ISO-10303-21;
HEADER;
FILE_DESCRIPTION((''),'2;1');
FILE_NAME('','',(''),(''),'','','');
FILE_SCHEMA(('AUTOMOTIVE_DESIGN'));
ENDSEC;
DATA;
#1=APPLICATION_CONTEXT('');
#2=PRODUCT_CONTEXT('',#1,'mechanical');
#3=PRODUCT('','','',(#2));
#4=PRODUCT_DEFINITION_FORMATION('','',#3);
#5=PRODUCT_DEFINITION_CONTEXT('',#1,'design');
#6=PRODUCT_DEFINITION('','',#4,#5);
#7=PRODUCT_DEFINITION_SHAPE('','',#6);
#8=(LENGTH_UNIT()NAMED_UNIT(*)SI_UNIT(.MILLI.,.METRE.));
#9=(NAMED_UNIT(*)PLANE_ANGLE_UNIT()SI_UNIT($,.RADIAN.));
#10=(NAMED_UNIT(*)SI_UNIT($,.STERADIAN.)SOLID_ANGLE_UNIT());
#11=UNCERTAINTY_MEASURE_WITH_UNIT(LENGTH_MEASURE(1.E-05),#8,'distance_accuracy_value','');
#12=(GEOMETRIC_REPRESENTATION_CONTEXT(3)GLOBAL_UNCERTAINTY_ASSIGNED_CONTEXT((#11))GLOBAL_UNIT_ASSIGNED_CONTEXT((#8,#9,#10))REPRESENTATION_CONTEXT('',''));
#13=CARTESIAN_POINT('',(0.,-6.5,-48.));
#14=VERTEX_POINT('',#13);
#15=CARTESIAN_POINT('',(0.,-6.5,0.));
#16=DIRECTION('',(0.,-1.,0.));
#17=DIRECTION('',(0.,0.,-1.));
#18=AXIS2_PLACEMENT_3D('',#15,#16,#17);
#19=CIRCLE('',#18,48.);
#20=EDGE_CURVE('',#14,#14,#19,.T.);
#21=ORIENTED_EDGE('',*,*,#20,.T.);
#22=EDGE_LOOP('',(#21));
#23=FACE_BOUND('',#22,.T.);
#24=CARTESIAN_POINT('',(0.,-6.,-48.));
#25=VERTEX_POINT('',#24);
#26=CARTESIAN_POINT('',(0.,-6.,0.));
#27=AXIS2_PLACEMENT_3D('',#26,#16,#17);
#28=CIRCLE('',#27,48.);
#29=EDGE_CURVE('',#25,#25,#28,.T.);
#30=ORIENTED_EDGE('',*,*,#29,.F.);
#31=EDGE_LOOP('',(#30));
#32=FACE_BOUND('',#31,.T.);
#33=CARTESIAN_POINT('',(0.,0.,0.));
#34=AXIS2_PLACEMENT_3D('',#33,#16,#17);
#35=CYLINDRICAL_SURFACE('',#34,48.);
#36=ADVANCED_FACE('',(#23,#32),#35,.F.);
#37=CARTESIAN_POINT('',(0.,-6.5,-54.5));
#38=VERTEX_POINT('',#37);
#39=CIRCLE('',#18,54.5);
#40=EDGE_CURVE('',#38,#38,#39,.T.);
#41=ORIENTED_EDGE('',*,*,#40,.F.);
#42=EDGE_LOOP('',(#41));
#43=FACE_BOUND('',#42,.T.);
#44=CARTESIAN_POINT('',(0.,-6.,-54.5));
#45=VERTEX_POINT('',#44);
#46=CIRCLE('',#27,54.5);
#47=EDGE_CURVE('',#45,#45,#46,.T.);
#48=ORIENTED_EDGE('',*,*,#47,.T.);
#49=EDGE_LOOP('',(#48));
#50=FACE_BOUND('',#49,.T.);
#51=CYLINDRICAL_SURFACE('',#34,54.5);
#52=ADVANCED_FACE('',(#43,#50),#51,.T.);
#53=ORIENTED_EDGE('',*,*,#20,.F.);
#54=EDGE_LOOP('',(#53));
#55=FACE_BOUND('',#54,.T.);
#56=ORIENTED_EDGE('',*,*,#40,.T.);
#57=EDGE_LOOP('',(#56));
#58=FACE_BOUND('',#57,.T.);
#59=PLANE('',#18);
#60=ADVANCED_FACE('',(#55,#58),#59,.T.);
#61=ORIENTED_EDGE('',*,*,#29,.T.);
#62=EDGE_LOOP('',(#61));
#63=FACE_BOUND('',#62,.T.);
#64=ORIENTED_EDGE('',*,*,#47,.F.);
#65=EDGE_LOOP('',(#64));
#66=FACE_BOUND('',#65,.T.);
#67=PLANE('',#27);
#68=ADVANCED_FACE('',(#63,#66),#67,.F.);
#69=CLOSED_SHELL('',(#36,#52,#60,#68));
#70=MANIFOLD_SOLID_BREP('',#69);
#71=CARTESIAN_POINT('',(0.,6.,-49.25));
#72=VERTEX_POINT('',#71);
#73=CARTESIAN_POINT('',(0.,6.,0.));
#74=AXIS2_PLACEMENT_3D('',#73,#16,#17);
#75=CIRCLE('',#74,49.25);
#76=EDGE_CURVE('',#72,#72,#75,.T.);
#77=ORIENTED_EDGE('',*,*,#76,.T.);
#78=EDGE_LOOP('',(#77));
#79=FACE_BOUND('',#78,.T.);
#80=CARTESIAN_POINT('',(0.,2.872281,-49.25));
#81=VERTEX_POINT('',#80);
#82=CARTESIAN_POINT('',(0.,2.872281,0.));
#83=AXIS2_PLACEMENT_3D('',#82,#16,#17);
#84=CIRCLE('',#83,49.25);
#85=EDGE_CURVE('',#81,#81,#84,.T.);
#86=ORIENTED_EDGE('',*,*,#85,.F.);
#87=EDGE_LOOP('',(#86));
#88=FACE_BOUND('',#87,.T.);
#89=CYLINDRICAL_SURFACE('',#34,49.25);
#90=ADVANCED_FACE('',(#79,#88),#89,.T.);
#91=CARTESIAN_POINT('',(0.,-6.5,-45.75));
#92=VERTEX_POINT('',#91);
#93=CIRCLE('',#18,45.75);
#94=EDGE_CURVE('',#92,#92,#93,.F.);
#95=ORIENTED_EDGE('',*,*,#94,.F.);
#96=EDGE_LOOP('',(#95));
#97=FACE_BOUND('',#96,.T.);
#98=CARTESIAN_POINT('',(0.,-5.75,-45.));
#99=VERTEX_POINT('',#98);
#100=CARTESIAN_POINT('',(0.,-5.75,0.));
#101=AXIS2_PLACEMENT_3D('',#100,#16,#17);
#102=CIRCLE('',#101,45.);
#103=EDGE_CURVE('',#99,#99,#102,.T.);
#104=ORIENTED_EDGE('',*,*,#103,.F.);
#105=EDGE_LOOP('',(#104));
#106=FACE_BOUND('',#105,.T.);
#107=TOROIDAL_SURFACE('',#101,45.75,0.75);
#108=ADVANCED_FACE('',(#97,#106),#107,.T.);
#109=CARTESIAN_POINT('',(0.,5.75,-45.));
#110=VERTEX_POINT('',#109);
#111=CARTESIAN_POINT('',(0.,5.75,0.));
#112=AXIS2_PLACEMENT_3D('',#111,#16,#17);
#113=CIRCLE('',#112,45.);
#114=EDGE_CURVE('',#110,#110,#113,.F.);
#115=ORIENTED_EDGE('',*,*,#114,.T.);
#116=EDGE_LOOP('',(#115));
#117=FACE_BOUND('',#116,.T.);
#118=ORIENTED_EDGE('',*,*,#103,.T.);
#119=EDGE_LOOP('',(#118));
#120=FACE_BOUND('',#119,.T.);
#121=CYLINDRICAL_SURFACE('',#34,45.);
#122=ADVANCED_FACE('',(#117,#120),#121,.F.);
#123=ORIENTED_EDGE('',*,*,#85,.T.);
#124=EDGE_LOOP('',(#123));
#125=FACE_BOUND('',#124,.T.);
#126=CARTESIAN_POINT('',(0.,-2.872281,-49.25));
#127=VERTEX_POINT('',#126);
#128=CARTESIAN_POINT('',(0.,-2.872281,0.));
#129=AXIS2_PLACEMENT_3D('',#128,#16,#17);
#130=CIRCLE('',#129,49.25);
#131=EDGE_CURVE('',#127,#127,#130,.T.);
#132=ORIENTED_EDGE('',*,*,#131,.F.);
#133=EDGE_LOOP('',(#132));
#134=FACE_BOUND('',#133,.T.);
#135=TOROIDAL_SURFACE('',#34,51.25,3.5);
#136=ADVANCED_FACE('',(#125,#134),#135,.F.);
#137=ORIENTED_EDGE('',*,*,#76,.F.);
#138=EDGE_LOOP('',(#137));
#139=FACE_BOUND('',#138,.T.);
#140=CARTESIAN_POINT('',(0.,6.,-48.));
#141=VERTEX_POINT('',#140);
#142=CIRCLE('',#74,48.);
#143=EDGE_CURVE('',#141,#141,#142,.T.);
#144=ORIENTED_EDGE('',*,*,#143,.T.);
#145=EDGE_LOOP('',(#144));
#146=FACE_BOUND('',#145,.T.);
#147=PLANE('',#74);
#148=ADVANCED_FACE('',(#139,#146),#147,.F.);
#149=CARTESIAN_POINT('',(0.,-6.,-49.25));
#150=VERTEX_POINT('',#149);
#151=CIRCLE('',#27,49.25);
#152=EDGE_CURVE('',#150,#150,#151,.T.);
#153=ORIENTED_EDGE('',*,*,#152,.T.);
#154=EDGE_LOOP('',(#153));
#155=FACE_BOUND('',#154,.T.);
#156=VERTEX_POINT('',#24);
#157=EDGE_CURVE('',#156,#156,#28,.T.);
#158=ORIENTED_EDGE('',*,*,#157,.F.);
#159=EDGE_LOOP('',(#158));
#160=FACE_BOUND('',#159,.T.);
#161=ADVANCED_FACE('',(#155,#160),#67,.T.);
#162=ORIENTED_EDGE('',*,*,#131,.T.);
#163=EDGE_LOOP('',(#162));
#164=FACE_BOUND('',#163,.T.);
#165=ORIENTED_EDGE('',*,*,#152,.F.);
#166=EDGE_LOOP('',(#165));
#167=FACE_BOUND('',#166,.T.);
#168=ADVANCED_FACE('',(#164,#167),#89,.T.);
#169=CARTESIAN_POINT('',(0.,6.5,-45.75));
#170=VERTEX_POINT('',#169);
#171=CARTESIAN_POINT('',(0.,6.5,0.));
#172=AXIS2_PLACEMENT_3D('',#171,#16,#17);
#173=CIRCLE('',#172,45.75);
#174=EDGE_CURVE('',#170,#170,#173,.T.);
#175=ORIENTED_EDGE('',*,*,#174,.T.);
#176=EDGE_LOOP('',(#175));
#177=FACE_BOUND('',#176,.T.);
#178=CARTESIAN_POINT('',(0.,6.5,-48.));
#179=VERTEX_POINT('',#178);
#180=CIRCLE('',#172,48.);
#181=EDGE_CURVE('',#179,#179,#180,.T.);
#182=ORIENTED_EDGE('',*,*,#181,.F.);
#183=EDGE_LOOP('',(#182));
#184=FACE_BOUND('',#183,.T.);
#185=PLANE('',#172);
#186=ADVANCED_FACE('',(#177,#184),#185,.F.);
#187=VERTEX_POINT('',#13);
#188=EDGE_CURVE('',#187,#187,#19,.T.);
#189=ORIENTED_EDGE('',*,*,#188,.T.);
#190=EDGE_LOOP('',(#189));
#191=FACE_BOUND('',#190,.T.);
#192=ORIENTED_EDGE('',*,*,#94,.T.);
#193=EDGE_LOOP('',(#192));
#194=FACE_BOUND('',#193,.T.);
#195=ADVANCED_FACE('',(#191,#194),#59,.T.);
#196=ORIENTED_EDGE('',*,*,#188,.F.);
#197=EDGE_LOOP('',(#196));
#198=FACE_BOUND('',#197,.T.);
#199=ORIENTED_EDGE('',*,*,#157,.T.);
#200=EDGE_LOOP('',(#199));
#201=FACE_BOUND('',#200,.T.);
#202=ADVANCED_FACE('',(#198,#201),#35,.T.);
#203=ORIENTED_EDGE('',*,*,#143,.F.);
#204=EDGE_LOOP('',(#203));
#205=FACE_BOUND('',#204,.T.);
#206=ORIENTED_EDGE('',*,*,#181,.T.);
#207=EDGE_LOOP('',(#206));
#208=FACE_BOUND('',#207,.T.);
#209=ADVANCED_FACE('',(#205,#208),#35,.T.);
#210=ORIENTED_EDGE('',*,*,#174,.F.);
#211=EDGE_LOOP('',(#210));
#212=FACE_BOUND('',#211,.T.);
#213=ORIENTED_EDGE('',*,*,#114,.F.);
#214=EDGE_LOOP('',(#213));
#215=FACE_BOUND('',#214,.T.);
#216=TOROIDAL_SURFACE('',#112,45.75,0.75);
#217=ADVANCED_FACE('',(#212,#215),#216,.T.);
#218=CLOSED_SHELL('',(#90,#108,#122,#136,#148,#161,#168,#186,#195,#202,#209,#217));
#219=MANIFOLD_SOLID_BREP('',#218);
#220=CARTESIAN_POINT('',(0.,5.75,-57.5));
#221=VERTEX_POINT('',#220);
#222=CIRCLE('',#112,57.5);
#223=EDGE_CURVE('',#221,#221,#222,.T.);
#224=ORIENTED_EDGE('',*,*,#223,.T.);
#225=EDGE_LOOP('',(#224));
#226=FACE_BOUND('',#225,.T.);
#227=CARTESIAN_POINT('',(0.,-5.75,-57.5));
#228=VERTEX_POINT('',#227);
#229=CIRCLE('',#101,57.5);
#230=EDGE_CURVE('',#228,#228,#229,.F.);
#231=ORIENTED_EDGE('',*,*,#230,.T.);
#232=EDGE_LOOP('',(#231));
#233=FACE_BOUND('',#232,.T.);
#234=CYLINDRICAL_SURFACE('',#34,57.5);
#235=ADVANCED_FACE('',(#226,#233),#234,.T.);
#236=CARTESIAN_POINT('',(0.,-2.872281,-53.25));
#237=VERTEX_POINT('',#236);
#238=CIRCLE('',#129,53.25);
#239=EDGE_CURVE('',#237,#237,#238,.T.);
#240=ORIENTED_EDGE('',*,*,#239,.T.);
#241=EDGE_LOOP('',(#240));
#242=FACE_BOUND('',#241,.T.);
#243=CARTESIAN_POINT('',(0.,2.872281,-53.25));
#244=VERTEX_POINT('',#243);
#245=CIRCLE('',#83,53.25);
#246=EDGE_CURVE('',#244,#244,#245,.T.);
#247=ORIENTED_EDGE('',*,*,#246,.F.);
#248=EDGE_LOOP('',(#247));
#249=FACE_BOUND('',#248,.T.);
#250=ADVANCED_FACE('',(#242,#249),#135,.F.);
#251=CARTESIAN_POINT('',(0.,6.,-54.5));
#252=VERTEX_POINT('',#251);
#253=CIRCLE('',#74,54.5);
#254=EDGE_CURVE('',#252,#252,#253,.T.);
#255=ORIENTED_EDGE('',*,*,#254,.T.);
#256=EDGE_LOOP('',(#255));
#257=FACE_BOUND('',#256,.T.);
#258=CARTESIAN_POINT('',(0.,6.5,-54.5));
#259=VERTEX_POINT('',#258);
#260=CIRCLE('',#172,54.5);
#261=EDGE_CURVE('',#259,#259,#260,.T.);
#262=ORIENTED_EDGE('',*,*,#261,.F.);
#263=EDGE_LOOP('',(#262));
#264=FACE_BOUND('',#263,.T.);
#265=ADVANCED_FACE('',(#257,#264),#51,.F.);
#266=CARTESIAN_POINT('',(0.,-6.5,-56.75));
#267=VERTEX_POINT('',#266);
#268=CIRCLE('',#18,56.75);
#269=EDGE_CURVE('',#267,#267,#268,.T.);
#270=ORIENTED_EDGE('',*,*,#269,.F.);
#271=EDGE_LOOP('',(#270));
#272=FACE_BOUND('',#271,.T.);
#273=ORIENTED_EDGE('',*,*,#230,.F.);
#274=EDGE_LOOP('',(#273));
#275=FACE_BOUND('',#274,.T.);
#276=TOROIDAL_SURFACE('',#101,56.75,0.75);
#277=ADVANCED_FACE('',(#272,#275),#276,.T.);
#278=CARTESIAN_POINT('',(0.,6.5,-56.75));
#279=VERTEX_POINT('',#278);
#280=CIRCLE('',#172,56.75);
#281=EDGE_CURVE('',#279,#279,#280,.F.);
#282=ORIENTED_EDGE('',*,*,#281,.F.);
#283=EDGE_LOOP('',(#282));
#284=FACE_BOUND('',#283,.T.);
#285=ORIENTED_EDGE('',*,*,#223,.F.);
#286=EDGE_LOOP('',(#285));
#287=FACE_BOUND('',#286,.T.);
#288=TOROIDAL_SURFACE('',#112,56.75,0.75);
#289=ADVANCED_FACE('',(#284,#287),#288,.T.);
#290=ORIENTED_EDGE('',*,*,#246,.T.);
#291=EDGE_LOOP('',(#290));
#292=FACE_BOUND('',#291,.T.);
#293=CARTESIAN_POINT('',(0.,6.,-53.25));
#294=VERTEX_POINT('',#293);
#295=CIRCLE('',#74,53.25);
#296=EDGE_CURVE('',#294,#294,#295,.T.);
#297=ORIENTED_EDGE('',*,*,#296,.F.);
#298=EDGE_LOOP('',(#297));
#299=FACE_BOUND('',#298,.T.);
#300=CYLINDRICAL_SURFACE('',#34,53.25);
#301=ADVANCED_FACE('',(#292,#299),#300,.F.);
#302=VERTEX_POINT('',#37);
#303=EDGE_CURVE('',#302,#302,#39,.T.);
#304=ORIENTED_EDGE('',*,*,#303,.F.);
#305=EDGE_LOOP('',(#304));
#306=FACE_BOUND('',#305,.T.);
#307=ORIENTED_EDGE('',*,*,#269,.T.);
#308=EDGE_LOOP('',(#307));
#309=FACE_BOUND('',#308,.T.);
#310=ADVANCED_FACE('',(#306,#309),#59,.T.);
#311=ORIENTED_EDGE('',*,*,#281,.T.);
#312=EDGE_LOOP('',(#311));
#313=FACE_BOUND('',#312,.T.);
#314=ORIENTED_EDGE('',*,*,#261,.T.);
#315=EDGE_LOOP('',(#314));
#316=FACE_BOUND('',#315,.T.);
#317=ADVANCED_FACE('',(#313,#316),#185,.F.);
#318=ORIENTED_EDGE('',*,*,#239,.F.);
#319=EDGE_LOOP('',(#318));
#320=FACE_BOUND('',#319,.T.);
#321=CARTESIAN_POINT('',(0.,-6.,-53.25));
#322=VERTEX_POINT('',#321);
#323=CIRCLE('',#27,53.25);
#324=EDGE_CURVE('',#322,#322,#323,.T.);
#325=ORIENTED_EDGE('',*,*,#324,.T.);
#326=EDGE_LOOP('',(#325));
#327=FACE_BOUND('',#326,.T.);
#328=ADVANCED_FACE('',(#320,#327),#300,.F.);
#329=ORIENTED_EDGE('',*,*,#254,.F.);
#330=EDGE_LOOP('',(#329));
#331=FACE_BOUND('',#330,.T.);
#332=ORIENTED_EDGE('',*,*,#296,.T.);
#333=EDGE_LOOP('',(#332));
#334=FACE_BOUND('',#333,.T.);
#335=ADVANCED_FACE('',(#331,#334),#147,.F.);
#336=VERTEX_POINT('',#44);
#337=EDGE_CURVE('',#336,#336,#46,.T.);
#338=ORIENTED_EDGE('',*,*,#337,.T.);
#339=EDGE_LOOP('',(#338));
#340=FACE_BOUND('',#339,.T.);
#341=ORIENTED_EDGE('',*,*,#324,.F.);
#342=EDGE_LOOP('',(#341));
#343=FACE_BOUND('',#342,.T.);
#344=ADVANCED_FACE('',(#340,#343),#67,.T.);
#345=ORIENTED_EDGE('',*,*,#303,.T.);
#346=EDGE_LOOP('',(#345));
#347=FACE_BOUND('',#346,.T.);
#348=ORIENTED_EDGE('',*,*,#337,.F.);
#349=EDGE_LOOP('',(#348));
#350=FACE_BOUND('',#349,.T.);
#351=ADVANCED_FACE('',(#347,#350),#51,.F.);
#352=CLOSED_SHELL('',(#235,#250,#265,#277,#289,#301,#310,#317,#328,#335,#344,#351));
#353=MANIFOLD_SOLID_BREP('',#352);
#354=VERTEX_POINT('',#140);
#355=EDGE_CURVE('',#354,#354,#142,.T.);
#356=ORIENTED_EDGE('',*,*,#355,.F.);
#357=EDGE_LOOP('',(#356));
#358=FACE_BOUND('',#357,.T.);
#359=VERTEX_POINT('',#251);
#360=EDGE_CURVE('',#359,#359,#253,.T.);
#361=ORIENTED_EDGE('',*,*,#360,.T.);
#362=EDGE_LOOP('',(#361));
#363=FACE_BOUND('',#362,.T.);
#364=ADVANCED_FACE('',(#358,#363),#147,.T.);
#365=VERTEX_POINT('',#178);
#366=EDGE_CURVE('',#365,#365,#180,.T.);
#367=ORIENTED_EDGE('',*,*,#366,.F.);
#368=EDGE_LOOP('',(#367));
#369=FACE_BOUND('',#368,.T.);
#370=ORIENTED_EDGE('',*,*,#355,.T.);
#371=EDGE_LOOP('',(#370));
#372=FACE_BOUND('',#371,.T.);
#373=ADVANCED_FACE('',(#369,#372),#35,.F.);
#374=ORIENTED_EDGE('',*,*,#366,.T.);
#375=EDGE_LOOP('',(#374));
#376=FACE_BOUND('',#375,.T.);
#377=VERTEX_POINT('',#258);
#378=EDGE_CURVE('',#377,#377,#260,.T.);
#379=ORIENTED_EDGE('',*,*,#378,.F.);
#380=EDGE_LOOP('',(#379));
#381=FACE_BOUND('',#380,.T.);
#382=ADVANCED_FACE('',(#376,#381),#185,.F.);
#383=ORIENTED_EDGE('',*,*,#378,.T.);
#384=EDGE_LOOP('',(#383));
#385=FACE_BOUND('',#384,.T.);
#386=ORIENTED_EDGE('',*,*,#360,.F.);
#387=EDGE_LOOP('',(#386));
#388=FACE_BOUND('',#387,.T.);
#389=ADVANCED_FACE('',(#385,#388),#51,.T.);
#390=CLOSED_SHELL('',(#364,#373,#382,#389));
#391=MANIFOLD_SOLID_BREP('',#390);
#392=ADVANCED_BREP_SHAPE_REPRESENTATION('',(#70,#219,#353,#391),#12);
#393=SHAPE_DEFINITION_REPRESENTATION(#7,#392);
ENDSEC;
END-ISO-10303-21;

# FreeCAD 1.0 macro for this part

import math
import FreeCAD as App
import Part
import Sketcher
Q = App.Units.Quantity


def edges_at(feature, points):
    """Names of the edges that pass closest to the given points."""
    edges = feature.Shape.Edges
    near = lambda p: min(range(len(edges)), key=lambda i: edges[i].distToShape(Part.Vertex(*p))[0])
    return sorted({f"Edge{near(p) + 1}" for p in points})


def add_polygon(sketch, points):
    """Adds a closed chain of lines whose ends are joined by coincident constraints."""
    first, n = sketch.GeometryCount, len(points)
    for a, b in zip(points, points[1:] + points[:1]):
        sketch.addGeometry(Part.LineSegment(App.Vector(*a, 0), App.Vector(*b, 0)), False)
    for i in range(n):
        sketch.addConstraint(Sketcher.Constraint("Coincident", first + i, 2, first + (i + 1) % n, 1))

doc = App.newDocument("Part")
body = doc.addObject("PartDesign::Body", "Body")
body.AllowCompound = True

# Sketch on XY plane
sketch1 = doc.addObject("Sketcher::SketchObject", "Sketch")
body.addObject(sketch1)
sketch1.AttachmentSupport = (doc.XY_Plane, [""])
sketch1.MapMode = "FlatFace"
sketch1.addGeometry(Part.LineSegment(App.Vector(45, 6.5, 0), App.Vector(45, -6.5, 0)), False)
sketch1.addGeometry(Part.LineSegment(App.Vector(45, -6.5, 0), App.Vector(48, -6.5, 0)), False)
sketch1.addGeometry(Part.LineSegment(App.Vector(48, -6.5, 0), App.Vector(48, -6, 0)), False)
sketch1.addGeometry(Part.LineSegment(App.Vector(48, -6, 0), App.Vector(49.25, -6, 0)), False)
sketch1.addGeometry(Part.LineSegment(App.Vector(49.25, -6, 0), App.Vector(49.25, -2.872281, 0)), False)
sketch1.addGeometry(Part.ArcOfCircle(Part.Circle(App.Vector(51.25, 0, 0), App.Vector(0, 0, 1), 3.5), math.radians(124.849905), math.radians(235.150095)), False)
sketch1.addGeometry(Part.LineSegment(App.Vector(49.25, 2.872281, 0), App.Vector(49.25, 6, 0)), False)
sketch1.addGeometry(Part.LineSegment(App.Vector(49.25, 6, 0), App.Vector(48, 6, 0)), False)
sketch1.addGeometry(Part.LineSegment(App.Vector(48, 6, 0), App.Vector(48, 6.5, 0)), False)
sketch1.addGeometry(Part.LineSegment(App.Vector(48, 6.5, 0), App.Vector(45, 6.5, 0)), False)
sketch1.addGeometry(Part.LineSegment(App.Vector(54.5, -6, 0), App.Vector(54.5, -6.5, 0)), False)
sketch1.addGeometry(Part.LineSegment(App.Vector(54.5, -6.5, 0), App.Vector(57.5, -6.5, 0)), False)
sketch1.addGeometry(Part.LineSegment(App.Vector(57.5, -6.5, 0), App.Vector(57.5, 6.5, 0)), False)
sketch1.addGeometry(Part.LineSegment(App.Vector(57.5, 6.5, 0), App.Vector(54.5, 6.5, 0)), False)
sketch1.addGeometry(Part.LineSegment(App.Vector(54.5, 6.5, 0), App.Vector(54.5, 6, 0)), False)
sketch1.addGeometry(Part.LineSegment(App.Vector(54.5, 6, 0), App.Vector(53.25, 6, 0)), False)
sketch1.addGeometry(Part.LineSegment(App.Vector(53.25, 6, 0), App.Vector(53.25, 2.872281, 0)), False)
sketch1.addGeometry(Part.ArcOfCircle(Part.Circle(App.Vector(51.25, 0, 0), App.Vector(0, 0, 1), 3.5), math.radians(-55.150095), math.radians(55.150095)), False)
sketch1.addGeometry(Part.LineSegment(App.Vector(53.25, -2.872281, 0), App.Vector(53.25, -6, 0)), False)
sketch1.addGeometry(Part.LineSegment(App.Vector(53.25, -6, 0), App.Vector(54.5, -6, 0)), False)
sketch1.addConstraint(Sketcher.Constraint("Coincident", 0, 2, 1, 1))
sketch1.addConstraint(Sketcher.Constraint("Coincident", 1, 2, 2, 1))
sketch1.addConstraint(Sketcher.Constraint("Coincident", 2, 2, 3, 1))
sketch1.addConstraint(Sketcher.Constraint("Coincident", 3, 2, 4, 1))
sketch1.addConstraint(Sketcher.Constraint("Coincident", 4, 2, 5, 2))
sketch1.addConstraint(Sketcher.Constraint("Coincident", 5, 1, 6, 1))
sketch1.addConstraint(Sketcher.Constraint("Coincident", 6, 2, 7, 1))
sketch1.addConstraint(Sketcher.Constraint("Coincident", 7, 2, 8, 1))
sketch1.addConstraint(Sketcher.Constraint("Coincident", 8, 2, 9, 1))
sketch1.addConstraint(Sketcher.Constraint("Coincident", 9, 2, 0, 1))
sketch1.addConstraint(Sketcher.Constraint("Coincident", 10, 2, 11, 1))
sketch1.addConstraint(Sketcher.Constraint("Coincident", 11, 2, 12, 1))
sketch1.addConstraint(Sketcher.Constraint("Coincident", 12, 2, 13, 1))
sketch1.addConstraint(Sketcher.Constraint("Coincident", 13, 2, 14, 1))
sketch1.addConstraint(Sketcher.Constraint("Coincident", 14, 2, 15, 1))
sketch1.addConstraint(Sketcher.Constraint("Coincident", 15, 2, 16, 1))
sketch1.addConstraint(Sketcher.Constraint("Coincident", 16, 2, 17, 2))
sketch1.addConstraint(Sketcher.Constraint("Coincident", 17, 1, 18, 1))
sketch1.addConstraint(Sketcher.Constraint("Coincident", 18, 2, 19, 1))
sketch1.addConstraint(Sketcher.Constraint("Coincident", 19, 2, 10, 1))
sketch1.addConstraint(Sketcher.Constraint("Vertical", 0))
sketch1.addConstraint(Sketcher.Constraint("Horizontal", 1))
sketch1.addConstraint(Sketcher.Constraint("Vertical", 2))
sketch1.addConstraint(Sketcher.Constraint("Horizontal", 3))
sketch1.addConstraint(Sketcher.Constraint("Vertical", 4))
sketch1.addConstraint(Sketcher.Constraint("Vertical", 6))
sketch1.addConstraint(Sketcher.Constraint("Horizontal", 7))
sketch1.addConstraint(Sketcher.Constraint("Vertical", 8))
sketch1.addConstraint(Sketcher.Constraint("Horizontal", 9))
sketch1.addConstraint(Sketcher.Constraint("Vertical", 10))
sketch1.addConstraint(Sketcher.Constraint("Horizontal", 11))
sketch1.addConstraint(Sketcher.Constraint("Vertical", 12))
sketch1.addConstraint(Sketcher.Constraint("Horizontal", 13))
sketch1.addConstraint(Sketcher.Constraint("Vertical", 14))
sketch1.addConstraint(Sketcher.Constraint("Horizontal", 15))
sketch1.addConstraint(Sketcher.Constraint("Vertical", 16))
sketch1.addConstraint(Sketcher.Constraint("Vertical", 18))
sketch1.addConstraint(Sketcher.Constraint("Horizontal", 19))
sketch1.addConstraint(Sketcher.Constraint("Coincident", 17, 3, 5, 3))
sketch1.addConstraint(Sketcher.Constraint("Equal", 5, 17))
sketch1.addConstraint(Sketcher.Constraint("Symmetric", 4, 2, 5, 1, -1))
sketch1.addConstraint(Sketcher.Constraint("Symmetric", 2, 2, 7, 2, -1))
sketch1.addConstraint(Sketcher.Constraint("Symmetric", 10, 2, 13, 2, -1))
sketch1.addConstraint(Sketcher.Constraint("Symmetric", 15, 2, 18, 2, -1))
sketch1.addConstraint(Sketcher.Constraint("Horizontal", 1, 2, 10, 2))
sketch1.addConstraint(Sketcher.Constraint("Horizontal", 9, 2, 12, 2))
sketch1.addConstraint(Sketcher.Constraint("Horizontal", 7, 2, 14, 2))
sketch1.addConstraint(Sketcher.Constraint("Horizontal", 5, 1, 16, 2))
sketch1.addConstraint(Sketcher.Constraint("Equal", 9, 11))
sketch1.addConstraint(Sketcher.Constraint("Equal", 7, 15))
sketch1.addConstraint(Sketcher.Constraint("Radius", 5, Q("3.5 mm")))
sketch1.addConstraint(Sketcher.Constraint("DistanceX", 1, 1, 1, 2, Q("3 mm")))
sketch1.addConstraint(Sketcher.Constraint("DistanceY", 0, 2, 0, 1, Q("13 mm")))
sketch1.addConstraint(Sketcher.Constraint("DistanceY", 2, 1, 2, 2, Q("0.5 mm")))
sketch1.addConstraint(Sketcher.Constraint("DistanceX", -1, 1, 0, 2, Q("45 mm")))
sketch1.addConstraint(Sketcher.Constraint("DistanceX", 3, 2, 5, 3, Q("2 mm")))
sketch1.addConstraint(Sketcher.Constraint("DistanceX", 3, 1, 3, 2, Q("1.25 mm")))
revolution = doc.addObject("PartDesign::Revolution", "Revolution")
body.addObject(revolution)
revolution.Profile = sketch1
revolution.ReferenceAxis = (sketch1, ["V_Axis"])
revolution.Angle = 360
doc.recompute()

fillet = doc.addObject("PartDesign::Fillet", "Fillet")
body.addObject(fillet)
fillet.Base = (revolution, edges_at(revolution, [(-45, -6.5, 0), (-45, 6.5, 0)]))
fillet.Radius = 0.75
doc.recompute()

fillet2 = doc.addObject("PartDesign::Fillet", "Fillet001")
body.addObject(fillet2)
fillet2.Base = (fillet, edges_at(fillet, [(-57.5, 6.5, 0), (-57.5, -6.5, 0)]))
fillet2.Radius = 0.75
body2 = doc.addObject("PartDesign::Body", "Body001")
body2.AllowCompound = True

# Sketch on XY plane
sketch2 = doc.addObject("Sketcher::SketchObject", "Sketch001")
body2.addObject(sketch2)
sketch2.AttachmentSupport = (doc.getObject("XY_Plane001"), [""])
sketch2.MapMode = "FlatFace"
add_polygon(sketch2, [(54.5, 6.5), (48, 6.5), (48, 6), (54.5, 6)])  # lines 0-3
add_polygon(sketch2, [(48, -6), (48, -6.5), (54.5, -6.5), (54.5, -6)])  # lines 4-7
sketch2.addConstraint(Sketcher.Constraint("Horizontal", 0))
sketch2.addConstraint(Sketcher.Constraint("Vertical", 1))
sketch2.addConstraint(Sketcher.Constraint("Horizontal", 2))
sketch2.addConstraint(Sketcher.Constraint("Vertical", 3))
sketch2.addConstraint(Sketcher.Constraint("Vertical", 4))
sketch2.addConstraint(Sketcher.Constraint("Horizontal", 5))
sketch2.addConstraint(Sketcher.Constraint("Vertical", 6))
sketch2.addConstraint(Sketcher.Constraint("Horizontal", 7))
sketch2.addConstraint(Sketcher.Constraint("Symmetric", 0, 2, 4, 2, -1))
sketch2.addConstraint(Sketcher.Constraint("Symmetric", 2, 2, 6, 2, -1))
sketch2.addConstraint(Sketcher.Constraint("DistanceX", 0, 2, 0, 1, Q("6.5 mm")))
sketch2.addConstraint(Sketcher.Constraint("DistanceY", 1, 2, 1, 1, Q("0.5 mm")))
sketch2.addConstraint(Sketcher.Constraint("DistanceX", -1, 1, 0, 2, Q("48 mm")))
sketch2.addConstraint(Sketcher.Constraint("DistanceY", -1, 1, 1, 2, Q("6 mm")))
revolution2 = doc.addObject("PartDesign::Revolution", "Revolution001")
body2.addObject(revolution2)
revolution2.Profile = sketch2
revolution2.ReferenceAxis = (sketch2, ["V_Axis"])
revolution2.Angle = 360

doc.recompute()
